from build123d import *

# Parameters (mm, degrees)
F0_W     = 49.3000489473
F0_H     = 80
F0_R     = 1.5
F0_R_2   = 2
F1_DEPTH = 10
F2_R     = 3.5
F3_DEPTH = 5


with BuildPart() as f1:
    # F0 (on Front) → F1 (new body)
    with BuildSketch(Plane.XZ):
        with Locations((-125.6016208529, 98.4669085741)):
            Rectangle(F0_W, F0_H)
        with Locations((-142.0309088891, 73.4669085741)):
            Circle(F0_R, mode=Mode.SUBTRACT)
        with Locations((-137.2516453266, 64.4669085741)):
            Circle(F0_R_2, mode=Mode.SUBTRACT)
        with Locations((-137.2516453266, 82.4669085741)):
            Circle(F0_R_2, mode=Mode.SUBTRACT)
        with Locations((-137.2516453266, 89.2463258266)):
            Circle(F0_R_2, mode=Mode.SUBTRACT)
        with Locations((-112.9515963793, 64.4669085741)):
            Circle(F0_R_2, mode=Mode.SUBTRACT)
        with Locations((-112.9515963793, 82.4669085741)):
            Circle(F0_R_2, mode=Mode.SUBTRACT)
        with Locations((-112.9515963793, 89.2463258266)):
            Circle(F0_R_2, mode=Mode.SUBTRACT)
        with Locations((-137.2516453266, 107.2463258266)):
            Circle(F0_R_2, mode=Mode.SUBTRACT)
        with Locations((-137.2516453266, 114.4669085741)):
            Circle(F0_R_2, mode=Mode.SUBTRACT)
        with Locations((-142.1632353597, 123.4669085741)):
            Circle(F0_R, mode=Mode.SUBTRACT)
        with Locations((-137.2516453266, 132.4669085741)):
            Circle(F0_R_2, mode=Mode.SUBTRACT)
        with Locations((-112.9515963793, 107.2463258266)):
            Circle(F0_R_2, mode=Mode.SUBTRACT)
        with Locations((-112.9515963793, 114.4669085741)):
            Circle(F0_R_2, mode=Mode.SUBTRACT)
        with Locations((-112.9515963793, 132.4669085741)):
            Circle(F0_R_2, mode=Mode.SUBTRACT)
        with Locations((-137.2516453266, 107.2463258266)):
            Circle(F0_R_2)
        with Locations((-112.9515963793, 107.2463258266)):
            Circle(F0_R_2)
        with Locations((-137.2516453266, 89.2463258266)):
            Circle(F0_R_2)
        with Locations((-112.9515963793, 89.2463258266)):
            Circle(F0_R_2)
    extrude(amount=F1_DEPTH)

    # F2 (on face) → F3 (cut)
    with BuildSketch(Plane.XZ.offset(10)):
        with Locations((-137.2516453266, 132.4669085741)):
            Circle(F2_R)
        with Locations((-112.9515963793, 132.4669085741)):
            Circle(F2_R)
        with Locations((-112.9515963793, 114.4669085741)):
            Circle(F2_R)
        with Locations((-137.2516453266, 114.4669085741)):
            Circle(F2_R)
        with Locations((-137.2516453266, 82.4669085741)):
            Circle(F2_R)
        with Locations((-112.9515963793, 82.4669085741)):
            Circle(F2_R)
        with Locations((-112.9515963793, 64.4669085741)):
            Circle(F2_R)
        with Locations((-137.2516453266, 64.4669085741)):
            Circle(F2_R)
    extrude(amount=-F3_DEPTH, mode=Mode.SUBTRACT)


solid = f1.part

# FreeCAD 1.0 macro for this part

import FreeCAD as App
import Part
import Sketcher

V = App.Vector
Q = App.Units.Quantity


def add_polygon(sketch, points):
    """Adds a closed chain of lines whose ends are joined by coincident constraints."""
    first, n = sketch.GeometryCount, len(points)
    for a, b in zip(points, points[1:] + points[:1]):
        sketch.addGeometry(Part.LineSegment(App.Vector(*a, 0), App.Vector(*b, 0)), False)
    for i in range(n):
        sketch.addConstraint(Sketcher.Constraint("Coincident", first + i, 2, first + (i + 1) % n, 1))

doc = App.newDocument("Part")
body = doc.addObject("PartDesign::Body", "Body")

# Sketch on XZ plane
sketch1 = doc.addObject("Sketcher::SketchObject", "Sketch")
body.addObject(sketch1)
sketch1.AttachmentSupport = (doc.XZ_Plane, [""])
sketch1.MapMode = "FlatFace"
add_polygon(sketch1, [(-150.251645, 138.466909), (-150.251645, 58.466909), (-100.951596, 58.466909), (-100.951596, 138.466909)])  # lines 0-3
sketch1.addGeometry(Part.Circle(V(-137.251645, 64.466909, 0), V(0, 0, 1), 2), False)  # 4
sketch1.addGeometry(Part.Circle(V(-142.030909, 73.466909, 0), V(0, 0, 1), 1.5), False)  # 5
sketch1.addGeometry(Part.Circle(V(-137.251645, 82.466909, 0), V(0, 0, 1), 2), False)  # 6
sketch1.addGeometry(Part.Circle(V(-112.951596, 64.466909, 0), V(0, 0, 1), 2), False)  # 7
sketch1.addGeometry(Part.Circle(V(-112.951596, 82.466909, 0), V(0, 0, 1), 2), False)  # 8
sketch1.addGeometry(Part.Circle(V(-137.251645, 114.466909, 0), V(0, 0, 1), 2), False)  # 9
sketch1.addGeometry(Part.Circle(V(-142.163235, 123.466909, 0), V(0, 0, 1), 1.5), False)  # 10
sketch1.addGeometry(Part.Circle(V(-137.251645, 132.466909, 0), V(0, 0, 1), 2), False)  # 11
sketch1.addGeometry(Part.Circle(V(-112.951596, 114.466909, 0), V(0, 0, 1), 2), False)  # 12
sketch1.addGeometry(Part.Circle(V(-112.951596, 132.466909, 0), V(0, 0, 1), 2), False)  # 13
sketch1.addConstraint(Sketcher.Constraint("Vertical", 0))
sketch1.addConstraint(Sketcher.Constraint("Horizontal", 1))
sketch1.addConstraint(Sketcher.Constraint("Vertical", 2))
sketch1.addConstraint(Sketcher.Constraint("Horizontal", 3))
sketch1.addConstraint(Sketcher.Constraint("Equal", 4, 6))
sketch1.addConstraint(Sketcher.Constraint("Equal", 6, 7))
sketch1.addConstraint(Sketcher.Constraint("Equal", 7, 8))
sketch1.addConstraint(Sketcher.Constraint("Equal", 8, 9))
sketch1.addConstraint(Sketcher.Constraint("Equal", 5, 10))
sketch1.addConstraint(Sketcher.Constraint("Equal", 9, 11))
sketch1.addConstraint(Sketcher.Constraint("Equal", 11, 12))
sketch1.addConstraint(Sketcher.Constraint("Equal", 12, 13))
sketch1.addConstraint(Sketcher.Constraint("Horizontal", 4, 3, 7, 3))
sketch1.addConstraint(Sketcher.Constraint("Horizontal", 6, 3, 8, 3))
sketch1.addConstraint(Sketcher.Constraint("Horizontal", 9, 3, 12, 3))
sketch1.addConstraint(Sketcher.Constraint("Horizontal", 11, 3, 13, 3))
sketch1.addConstraint(Sketcher.Constraint("Vertical", 4, 3, 6, 3))
sketch1.addConstraint(Sketcher.Constraint("Vertical", 7, 3, 8, 3))
sketch1.addConstraint(Sketcher.Constraint("Vertical", 6, 3, 9, 3))
sketch1.addConstraint(Sketcher.Constraint("Vertical", 9, 3, 11, 3))
sketch1.addConstraint(Sketcher.Constraint("Vertical", 8, 3, 12, 3))
sketch1.addConstraint(Sketcher.Constraint("Vertical", 12, 3, 13, 3))
sketch1.addConstraint(Sketcher.Constraint("Diameter", 4, Q("4 mm")))
sketch1.addConstraint(Sketcher.Constraint("Diameter", 5, Q("3 mm")))
sketch1.addConstraint(Sketcher.Constraint("DistanceY", 0, 2, 0, 1, Q("80 mm")))
sketch1.addConstraint(Sketcher.Constraint("DistanceY", 4, 3, 5, 3, Q("9 mm")))
sketch1.addConstraint(Sketcher.Constraint("DistanceY", 5, 3, 6, 3, Q("9 mm")))
sketch1.addConstraint(Sketcher.Constraint("DistanceY", 6, 3, 9, 3, Q("32 mm")))
sketch1.addConstraint(Sketcher.Constraint("DistanceY", 9, 3, 10, 3, Q("9 mm")))
sketch1.addConstraint(Sketcher.Constraint("DistanceY", 10, 3, 11, 3, Q("9 mm")))
sketch1.addConstraint(Sketcher.Constraint("DistanceX", 0, 2, 4, 3, Q("13 mm")))
sketch1.addConstraint(Sketcher.Constraint("DistanceY", 0, 2, 4, 3, Q("6 mm")))
sketch1.addConstraint(Sketcher.Constraint("DistanceX", 7, 3, 1, 2, Q("12 mm")))
sketch1.addConstraint(Sketcher.Constraint("DistanceX", 1, 1, 1, 2, Q("49.300049 mm")))
sketch1.addConstraint(Sketcher.Constraint("DistanceY", -1, 1, 4, 3, Q("64.466909 mm")))
sketch1.addConstraint(Sketcher.Constraint("DistanceX", 5, 3, -1, 1, Q("142.030909 mm")))
sketch1.addConstraint(Sketcher.Constraint("DistanceX", 10, 3, 9, 3, Q("4.91159 mm")))
sketch1.addConstraint(Sketcher.Constraint("DistanceX", 4, 3, -1, 1, Q("137.251645 mm")))
pad1 = doc.addObject("PartDesign::Pad", "Pad")
body.addObject(pad1)
pad1.Profile = sketch1
pad1.Length = 10

# Sketch on XZ plane
sketch2 = doc.addObject("Sketcher::SketchObject", "Sketch001")
body.addObject(sketch2)
sketch2.AttachmentSupport = (doc.XZ_Plane, [""])
sketch2.MapMode = "FlatFace"
sketch2.AttachmentOffset = App.Placement(V(0, 0, 10), App.Rotation())
sketch2.addGeometry(Part.Circle(V(-137.251645, 132.466909, 0), V(0, 0, 1), 3.5), False)
sketch2.addGeometry(Part.Circle(V(-112.951596, 132.466909, 0), V(0, 0, 1), 3.5), False)
sketch2.addGeometry(Part.Circle(V(-112.951596, 114.466909, 0), V(0, 0, 1), 3.5), False)
sketch2.addGeometry(Part.Circle(V(-137.251645, 114.466909, 0), V(0, 0, 1), 3.5), False)
sketch2.addGeometry(Part.Circle(V(-137.251645, 82.466909, 0), V(0, 0, 1), 3.5), False)
sketch2.addGeometry(Part.Circle(V(-112.951596, 82.466909, 0), V(0, 0, 1), 3.5), False)
sketch2.addGeometry(Part.Circle(V(-112.951596, 64.466909, 0), V(0, 0, 1), 3.5), False)
sketch2.addGeometry(Part.Circle(V(-137.251645, 64.466909, 0), V(0, 0, 1), 3.5), False)
sketch2.addConstraint(Sketcher.Constraint("Equal", 0, 1))
sketch2.addConstraint(Sketcher.Constraint("Equal", 1, 2))
sketch2.addConstraint(Sketcher.Constraint("Equal", 2, 3))
sketch2.addConstraint(Sketcher.Constraint("Equal", 3, 4))
sketch2.addConstraint(Sketcher.Constraint("Equal", 4, 5))
sketch2.addConstraint(Sketcher.Constraint("Equal", 5, 6))
sketch2.addConstraint(Sketcher.Constraint("Equal", 6, 7))
sketch2.addConstraint(Sketcher.Constraint("Horizontal", 0, 3, 1, 3))
sketch2.addConstraint(Sketcher.Constraint("Horizontal", 2, 3, 3, 3))
sketch2.addConstraint(Sketcher.Constraint("Horizontal", 4, 3, 5, 3))
sketch2.addConstraint(Sketcher.Constraint("Horizontal", 6, 3, 7, 3))
sketch2.addConstraint(Sketcher.Constraint("Vertical", 1, 3, 2, 3))
sketch2.addConstraint(Sketcher.Constraint("Vertical", 0, 3, 3, 3))
sketch2.addConstraint(Sketcher.Constraint("Vertical", 3, 3, 4, 3))
sketch2.addConstraint(Sketcher.Constraint("Vertical", 2, 3, 5, 3))
sketch2.addConstraint(Sketcher.Constraint("Vertical", 5, 3, 6, 3))
sketch2.addConstraint(Sketcher.Constraint("Vertical", 4, 3, 7, 3))
sketch2.addConstraint(Sketcher.Constraint("Diameter", 0, Q("7 mm")))
sketch2.addConstraint(Sketcher.Constraint("DistanceY", 2, 3, 1, 3, Q("18 mm")))
sketch2.addConstraint(Sketcher.Constraint("DistanceY", 4, 3, 3, 3, Q("32 mm")))
sketch2.addConstraint(Sketcher.Constraint("DistanceY", 6, 3, 5, 3, Q("18 mm")))
sketch2.addConstraint(Sketcher.Constraint("DistanceY", -1, 1, 0, 3, Q("132.466909 mm")))
sketch2.addConstraint(Sketcher.Constraint("DistanceX", 0, 3, 1, 3, Q("24.300049 mm")))
sketch2.addConstraint(Sketcher.Constraint("DistanceX", 0, 3, -1, 1, Q("137.251645 mm")))
pocket1 = doc.addObject("PartDesign::Pocket", "Pocket")
body.addObject(pocket1)
pocket1.Profile = sketch2
pocket1.Length = 5

doc.recompute()
